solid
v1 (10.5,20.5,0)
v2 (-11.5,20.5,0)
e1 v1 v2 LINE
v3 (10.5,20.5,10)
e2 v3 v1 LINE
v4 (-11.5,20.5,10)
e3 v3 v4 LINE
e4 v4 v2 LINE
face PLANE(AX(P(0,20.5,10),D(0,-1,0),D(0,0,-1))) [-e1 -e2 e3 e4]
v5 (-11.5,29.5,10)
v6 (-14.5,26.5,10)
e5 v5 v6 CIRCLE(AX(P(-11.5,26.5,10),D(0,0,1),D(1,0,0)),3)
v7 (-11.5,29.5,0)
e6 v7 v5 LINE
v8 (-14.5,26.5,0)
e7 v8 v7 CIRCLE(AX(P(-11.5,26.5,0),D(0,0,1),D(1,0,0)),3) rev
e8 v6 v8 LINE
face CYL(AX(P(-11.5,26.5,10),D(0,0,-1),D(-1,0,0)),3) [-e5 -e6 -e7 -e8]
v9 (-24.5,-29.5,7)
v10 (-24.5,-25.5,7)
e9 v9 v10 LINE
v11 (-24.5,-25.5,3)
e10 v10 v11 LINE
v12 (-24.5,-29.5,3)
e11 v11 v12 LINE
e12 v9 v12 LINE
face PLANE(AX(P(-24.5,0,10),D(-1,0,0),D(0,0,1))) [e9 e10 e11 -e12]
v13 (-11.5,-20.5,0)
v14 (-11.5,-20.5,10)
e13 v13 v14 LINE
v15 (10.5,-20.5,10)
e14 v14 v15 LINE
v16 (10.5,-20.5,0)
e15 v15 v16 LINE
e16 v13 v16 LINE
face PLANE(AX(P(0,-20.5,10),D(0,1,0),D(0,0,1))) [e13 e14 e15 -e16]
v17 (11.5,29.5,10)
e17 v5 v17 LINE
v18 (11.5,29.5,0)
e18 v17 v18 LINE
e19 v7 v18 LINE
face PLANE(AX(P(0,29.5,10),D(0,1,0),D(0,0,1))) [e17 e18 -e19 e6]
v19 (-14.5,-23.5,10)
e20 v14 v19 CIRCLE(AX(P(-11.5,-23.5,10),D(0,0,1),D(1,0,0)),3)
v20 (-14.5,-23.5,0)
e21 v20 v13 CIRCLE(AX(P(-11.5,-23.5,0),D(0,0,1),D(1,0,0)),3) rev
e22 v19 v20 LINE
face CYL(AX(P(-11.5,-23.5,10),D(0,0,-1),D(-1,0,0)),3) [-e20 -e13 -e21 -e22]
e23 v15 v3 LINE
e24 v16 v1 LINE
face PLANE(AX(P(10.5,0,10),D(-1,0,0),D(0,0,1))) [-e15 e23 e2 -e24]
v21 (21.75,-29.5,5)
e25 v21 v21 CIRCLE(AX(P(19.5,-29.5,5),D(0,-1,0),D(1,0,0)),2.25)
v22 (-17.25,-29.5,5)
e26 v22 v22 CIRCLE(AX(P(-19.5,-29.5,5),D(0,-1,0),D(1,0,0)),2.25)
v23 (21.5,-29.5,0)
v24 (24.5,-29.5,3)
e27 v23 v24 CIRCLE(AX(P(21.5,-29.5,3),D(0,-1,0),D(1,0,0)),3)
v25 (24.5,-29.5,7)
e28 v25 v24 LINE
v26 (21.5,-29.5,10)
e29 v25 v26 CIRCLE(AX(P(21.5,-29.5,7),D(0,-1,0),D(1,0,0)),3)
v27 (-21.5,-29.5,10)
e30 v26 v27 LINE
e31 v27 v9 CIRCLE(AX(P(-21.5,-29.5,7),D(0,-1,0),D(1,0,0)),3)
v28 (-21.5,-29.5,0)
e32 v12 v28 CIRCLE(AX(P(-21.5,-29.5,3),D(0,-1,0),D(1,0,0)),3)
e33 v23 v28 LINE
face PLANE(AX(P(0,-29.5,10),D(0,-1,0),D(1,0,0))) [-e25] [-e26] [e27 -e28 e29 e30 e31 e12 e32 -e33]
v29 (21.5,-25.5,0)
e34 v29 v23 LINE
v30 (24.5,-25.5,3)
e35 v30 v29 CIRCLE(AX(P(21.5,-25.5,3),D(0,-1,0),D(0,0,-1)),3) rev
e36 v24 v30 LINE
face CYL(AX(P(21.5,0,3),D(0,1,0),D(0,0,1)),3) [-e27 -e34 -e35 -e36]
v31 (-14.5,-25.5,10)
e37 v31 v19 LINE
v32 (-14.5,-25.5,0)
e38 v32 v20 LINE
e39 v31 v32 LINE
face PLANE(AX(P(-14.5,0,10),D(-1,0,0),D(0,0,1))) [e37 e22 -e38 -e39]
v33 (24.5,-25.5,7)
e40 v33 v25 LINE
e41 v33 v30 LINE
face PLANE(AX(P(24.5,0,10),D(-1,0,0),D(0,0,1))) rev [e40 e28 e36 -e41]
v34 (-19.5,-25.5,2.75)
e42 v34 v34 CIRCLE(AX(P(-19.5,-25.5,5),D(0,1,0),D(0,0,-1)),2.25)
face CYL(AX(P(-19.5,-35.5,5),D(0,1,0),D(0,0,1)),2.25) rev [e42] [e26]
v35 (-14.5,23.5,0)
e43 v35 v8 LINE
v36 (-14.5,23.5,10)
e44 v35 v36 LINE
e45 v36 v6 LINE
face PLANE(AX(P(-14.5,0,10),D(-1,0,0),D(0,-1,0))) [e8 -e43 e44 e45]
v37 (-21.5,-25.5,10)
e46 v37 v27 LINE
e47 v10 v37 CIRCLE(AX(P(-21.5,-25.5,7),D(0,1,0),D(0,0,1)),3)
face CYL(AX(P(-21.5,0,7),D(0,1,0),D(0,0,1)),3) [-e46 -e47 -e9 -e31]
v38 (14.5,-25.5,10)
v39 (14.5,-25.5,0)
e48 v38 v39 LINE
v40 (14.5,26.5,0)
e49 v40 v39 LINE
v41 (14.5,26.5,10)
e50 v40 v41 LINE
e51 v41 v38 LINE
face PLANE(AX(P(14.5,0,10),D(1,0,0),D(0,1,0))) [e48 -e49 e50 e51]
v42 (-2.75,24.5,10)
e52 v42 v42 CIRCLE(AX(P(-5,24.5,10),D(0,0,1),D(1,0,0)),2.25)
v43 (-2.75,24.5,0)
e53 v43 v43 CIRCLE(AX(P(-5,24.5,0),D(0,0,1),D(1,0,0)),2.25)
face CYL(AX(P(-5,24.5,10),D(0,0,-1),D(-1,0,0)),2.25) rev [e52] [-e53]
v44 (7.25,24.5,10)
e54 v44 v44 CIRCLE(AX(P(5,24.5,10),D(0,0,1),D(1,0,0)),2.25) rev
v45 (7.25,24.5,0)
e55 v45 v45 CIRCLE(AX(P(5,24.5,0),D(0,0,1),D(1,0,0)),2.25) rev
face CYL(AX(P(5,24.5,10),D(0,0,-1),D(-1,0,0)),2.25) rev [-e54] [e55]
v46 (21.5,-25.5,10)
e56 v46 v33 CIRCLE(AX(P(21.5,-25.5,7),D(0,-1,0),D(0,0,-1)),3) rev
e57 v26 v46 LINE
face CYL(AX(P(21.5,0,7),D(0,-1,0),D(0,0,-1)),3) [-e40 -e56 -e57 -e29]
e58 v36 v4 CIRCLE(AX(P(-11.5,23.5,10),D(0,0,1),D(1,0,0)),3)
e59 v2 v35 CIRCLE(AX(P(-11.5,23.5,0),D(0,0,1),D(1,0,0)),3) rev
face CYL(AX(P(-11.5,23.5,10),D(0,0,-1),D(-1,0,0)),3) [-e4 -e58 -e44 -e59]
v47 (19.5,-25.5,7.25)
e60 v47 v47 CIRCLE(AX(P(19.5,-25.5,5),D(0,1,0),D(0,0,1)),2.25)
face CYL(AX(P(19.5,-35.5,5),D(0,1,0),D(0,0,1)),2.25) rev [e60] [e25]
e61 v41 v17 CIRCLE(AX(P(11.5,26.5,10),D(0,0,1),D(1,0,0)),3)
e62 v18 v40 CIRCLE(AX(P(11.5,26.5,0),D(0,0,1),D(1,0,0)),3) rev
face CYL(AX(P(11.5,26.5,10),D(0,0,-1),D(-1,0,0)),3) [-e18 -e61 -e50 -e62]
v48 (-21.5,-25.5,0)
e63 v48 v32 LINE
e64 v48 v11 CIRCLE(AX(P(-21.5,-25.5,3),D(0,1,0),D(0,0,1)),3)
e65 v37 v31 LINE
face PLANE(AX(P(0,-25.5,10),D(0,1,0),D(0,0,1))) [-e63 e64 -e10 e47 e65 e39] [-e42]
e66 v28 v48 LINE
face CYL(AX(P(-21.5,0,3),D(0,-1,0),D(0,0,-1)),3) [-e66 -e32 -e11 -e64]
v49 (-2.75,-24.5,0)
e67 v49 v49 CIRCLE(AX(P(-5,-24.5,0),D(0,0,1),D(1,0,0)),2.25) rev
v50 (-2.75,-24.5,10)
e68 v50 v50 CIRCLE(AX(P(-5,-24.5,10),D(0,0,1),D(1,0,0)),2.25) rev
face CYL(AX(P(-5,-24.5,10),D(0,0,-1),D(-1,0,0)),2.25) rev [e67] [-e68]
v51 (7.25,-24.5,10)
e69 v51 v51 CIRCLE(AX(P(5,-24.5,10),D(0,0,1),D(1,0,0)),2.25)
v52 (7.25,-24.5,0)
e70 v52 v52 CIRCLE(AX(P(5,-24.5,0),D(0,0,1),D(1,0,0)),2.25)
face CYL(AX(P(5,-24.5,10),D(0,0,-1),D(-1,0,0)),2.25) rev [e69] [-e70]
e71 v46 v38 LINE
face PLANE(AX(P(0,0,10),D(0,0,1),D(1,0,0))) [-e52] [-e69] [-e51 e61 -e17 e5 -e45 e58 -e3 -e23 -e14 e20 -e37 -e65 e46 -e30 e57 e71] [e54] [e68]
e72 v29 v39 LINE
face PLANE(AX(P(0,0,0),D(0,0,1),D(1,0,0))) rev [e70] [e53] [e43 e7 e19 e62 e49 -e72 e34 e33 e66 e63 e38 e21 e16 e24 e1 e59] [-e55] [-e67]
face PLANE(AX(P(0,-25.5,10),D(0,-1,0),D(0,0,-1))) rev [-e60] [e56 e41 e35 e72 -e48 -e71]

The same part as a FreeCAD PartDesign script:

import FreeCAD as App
import Part
import Sketcher

V = App.Vector
Q = App.Units.Quantity


def edges_at(feature, points):
    """Names of the edges that pass closest to the given points."""
    edges = feature.Shape.Edges
    near = lambda p: min(range(len(edges)), key=lambda i: edges[i].distToShape(Part.Vertex(*p))[0])
    return sorted({f"Edge{near(p) + 1}" for p in points})

doc = App.newDocument("Part")
body = doc.addObject("PartDesign::Body", "Body")

# Sketch on XY plane
sketch1 = doc.addObject("Sketcher::SketchObject", "Sketch")
body.addObject(sketch1)
sketch1.AttachmentSupport = (doc.XY_Plane, [""])
sketch1.MapMode = "FlatFace"
sketch1.addGeometry(Part.LineSegment(V(-24.5, -25.5, 0), V(-24.5, -29.5, 0)), False)
sketch1.addGeometry(Part.LineSegment(V(-24.5, -29.5, 0), V(24.5, -29.5, 0)), False)
sketch1.addGeometry(Part.LineSegment(V(24.5, -29.5, 0), V(24.5, -25.5, 0)), False)
sketch1.addGeometry(Part.LineSegment(V(24.5, -25.5, 0), V(14.5, -25.5, 0)), False)
sketch1.addGeometry(Part.LineSegment(V(14.5, -25.5, 0), V(14.5, 29.5, 0)), False)
sketch1.addGeometry(Part.LineSegment(V(14.5, 29.5, 0), V(-14.5, 29.5, 0)), False)
sketch1.addGeometry(Part.LineSegment(V(-14.5, 29.5, 0), V(-14.5, 20.5, 0)), False)
sketch1.addGeometry(Part.LineSegment(V(-14.5, 20.5, 0), V(10.5, 20.5, 0)), False)
sketch1.addGeometry(Part.LineSegment(V(10.5, 20.5, 0), V(10.5, -20.5, 0)), False)
sketch1.addGeometry(Part.LineSegment(V(10.5, -20.5, 0), V(-14.5, -20.5, 0)), False)
sketch1.addGeometry(Part.LineSegment(V(-14.5, -20.5, 0), V(-14.5, -25.5, 0)), False)
sketch1.addGeometry(Part.LineSegment(V(-14.5, -25.5, 0), V(-24.5, -25.5, 0)), False)
sketch1.addGeometry(Part.Circle(V(-5, -24.5, 0), V(0, 0, 1), 2.2), False)
sketch1.addGeometry(Part.Circle(V(5, -24.5, 0), V(0, 0, 1), 2.2), False)
sketch1.addGeometry(Part.Circle(V(-5, 24.5, 0), V(0, 0, 1), 2.2), False)
sketch1.addGeometry(Part.Circle(V(5, 24.5, 0), V(0, 0, 1), 2.2), False)
sketch1.addConstraint(Sketcher.Constraint("Coincident", 0, 2, 1, 1))
sketch1.addConstraint(Sketcher.Constraint("Coincident", 1, 2, 2, 1))
sketch1.addConstraint(Sketcher.Constraint("Coincident", 2, 2, 3, 1))
sketch1.addConstraint(Sketcher.Constraint("Coincident", 3, 2, 4, 1))
sketch1.addConstraint(Sketcher.Constraint("Coincident", 4, 2, 5, 1))
sketch1.addConstraint(Sketcher.Constraint("Coincident", 5, 2, 6, 1))
sketch1.addConstraint(Sketcher.Constraint("Coincident", 6, 2, 7, 1))
sketch1.addConstraint(Sketcher.Constraint("Coincident", 7, 2, 8, 1))
sketch1.addConstraint(Sketcher.Constraint("Coincident", 8, 2, 9, 1))
sketch1.addConstraint(Sketcher.Constraint("Coincident", 9, 2, 10, 1))
sketch1.addConstraint(Sketcher.Constraint("Coincident", 10, 2, 11, 1))
sketch1.addConstraint(Sketcher.Constraint("Coincident", 11, 2, 0, 1))
sketch1.addConstraint(Sketcher.Constraint("Vertical", 0))
sketch1.addConstraint(Sketcher.Constraint("Horizontal", 1))
sketch1.addConstraint(Sketcher.Constraint("Vertical", 2))
sketch1.addConstraint(Sketcher.Constraint("Horizontal", 3))
sketch1.addConstraint(Sketcher.Constraint("Vertical", 4))
sketch1.addConstraint(Sketcher.Constraint("Horizontal", 5))
sketch1.addConstraint(Sketcher.Constraint("Vertical", 6))
sketch1.addConstraint(Sketcher.Constraint("Horizontal", 7))
sketch1.addConstraint(Sketcher.Constraint("Vertical", 8))
sketch1.addConstraint(Sketcher.Constraint("Horizontal", 9))
sketch1.addConstraint(Sketcher.Constraint("Vertical", 10))
sketch1.addConstraint(Sketcher.Constraint("Horizontal", 11))
sketch1.addConstraint(Sketcher.Constraint("Equal", 12, 13))
sketch1.addConstraint(Sketcher.Constraint("Equal", 13, 14))
sketch1.addConstraint(Sketcher.Constraint("Equal", 14, 15))
sketch1.addConstraint(Sketcher.Constraint("Symmetric", 13, 3, 14, 3, -1, 1))
sketch1.addConstraint(Sketcher.Constraint("Symmetric", 12, 3, 15, 3, -1, 1))
sketch1.addConstraint(Sketcher.Constraint("Symmetric", 12, 3, 13, 3, -2))
sketch1.addConstraint(Sketcher.Constraint("Symmetric", 3, 2, 10, 2, -2))
sketch1.addConstraint(Sketcher.Constraint("Symmetric", 6, 2, 9, 2, -1))
sketch1.addConstraint(Sketcher.Constraint("Equal", 3, 11))
sketch1.addConstraint(Sketcher.Constraint("Diameter", 12, Q("4.5 mm")))
sketch1.addConstraint(Sketcher.Constraint("DistanceX", 1, 1, 1, 2, Q("49 mm")))
sketch1.addConstraint(Sketcher.Constraint("DistanceX", 3, 2, 3, 1, Q("10 mm")))
sketch1.addConstraint(Sketcher.Constraint("DistanceX", 7, 1, 7, 2, Q("25 mm")))
sketch1.addConstraint(Sketcher.Constraint("DistanceY", 0, 2, 0, 1, Q("4 mm")))
sketch1.addConstraint(Sketcher.Constraint("DistanceY", 4, 1, 4, 2, Q("55 mm")))
sketch1.addConstraint(Sketcher.Constraint("DistanceY", 6, 2, 6, 1, Q("9 mm")))
sketch1.addConstraint(Sketcher.Constraint("DistanceY", 8, 2, 8, 1, Q("41 mm")))
sketch1.addConstraint(Sketcher.Constraint("DistanceX", 12, 3, -1, 1, Q("5 mm")))
sketch1.addConstraint(Sketcher.Constraint("DistanceY", 12, 3, 14, 3, Q("49 mm")))
pad1 = doc.addObject("PartDesign::Pad", "Pad")
body.addObject(pad1)
pad1.Profile = sketch1
pad1.Length = 10

# Sketch on XZ plane
sketch2 = doc.addObject("Sketcher::SketchObject", "Sketch001")
body.addObject(sketch2)
sketch2.AttachmentSupport = (doc.XZ_Plane, [""])
sketch2.MapMode = "FlatFace"
sketch2.AttachmentOffset = App.Placement(V(0, 0, 25.5), App.Rotation())
sketch2.addGeometry(Part.Circle(V(19.5, 5, 0), V(0, 0, 1), 2.2), False)
sketch2.addGeometry(Part.Circle(V(-19.5, 5, 0), V(0, 0, 1), 2.2), False)
sketch2.addConstraint(Sketcher.Constraint("Equal", 0, 1))
sketch2.addConstraint(Sketcher.Constraint("Symmetric", 0, 3, 1, 3, -2))
sketch2.addConstraint(Sketcher.Constraint("Diameter", 0, Q("4.5 mm")))
sketch2.addConstraint(Sketcher.Constraint("DistanceY", -1, 1, 0, 3, Q("5 mm")))
sketch2.addConstraint(Sketcher.Constraint("DistanceX", 1, 3, 0, 3, Q("39 mm")))
pocket1 = doc.addObject("PartDesign::Pocket", "Pocket")
body.addObject(pocket1)
pocket1.Profile = sketch2
pocket1.Length = 10
pocket1.Reversed = True
doc.recompute()

fillet = doc.addObject("PartDesign::Fillet", "Fillet")
body.addObject(fillet)
fillet.Base = (pocket1, edges_at(pocket1, [
    (-24.5, -27.5, 10),
    (24.5, -27.5, 0),
    (24.5, -27.5, 10),
    (-24.5, -27.5, 0),
    (-14.5, -20.5, 5),
    (-14.5, 20.5, 5),
    (-14.5, 29.5, 5),
    (14.5, 29.5, 5),
]))
fillet.Radius = 3

doc.recompute()
